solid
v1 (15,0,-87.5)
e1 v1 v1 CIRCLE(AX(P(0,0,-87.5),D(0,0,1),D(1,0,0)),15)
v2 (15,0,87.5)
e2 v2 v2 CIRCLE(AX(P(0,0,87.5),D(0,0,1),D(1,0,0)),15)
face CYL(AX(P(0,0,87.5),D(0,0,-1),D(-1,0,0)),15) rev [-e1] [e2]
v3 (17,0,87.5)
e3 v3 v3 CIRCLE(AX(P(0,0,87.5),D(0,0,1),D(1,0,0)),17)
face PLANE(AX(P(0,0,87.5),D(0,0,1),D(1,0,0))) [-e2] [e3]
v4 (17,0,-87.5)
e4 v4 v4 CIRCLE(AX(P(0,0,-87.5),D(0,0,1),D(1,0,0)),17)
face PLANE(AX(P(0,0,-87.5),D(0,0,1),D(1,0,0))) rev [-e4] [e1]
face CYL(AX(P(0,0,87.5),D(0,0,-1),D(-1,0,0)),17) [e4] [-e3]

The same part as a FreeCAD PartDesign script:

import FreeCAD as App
import Part
import Sketcher

V = App.Vector

doc = App.newDocument("Part")
body = doc.addObject("PartDesign::Body", "Body")

# Sketch on XY plane
sketch1 = body.newObject("Sketcher::SketchObject", "Sketch")
sketch1.AttachmentSupport = (doc.getObject("XY_Plane"), [""])
sketch1.MapMode = "FlatFace"
sketch1.addGeometry(Part.Circle(V(0, 0, 0), V(0, 0, 1), 17), False)
sketch1.addGeometry(Part.Circle(V(0, 0, 0), V(0, 0, 1), 15), False)
sketch1.addConstraint(Sketcher.Constraint("Coincident", 0, 3, -1, 1))
sketch1.addConstraint(Sketcher.Constraint("Coincident", 1, 3, -1, 1))
sketch1.addConstraint(Sketcher.Constraint("Diameter", 0, 34.0))
sketch1.addConstraint(Sketcher.Constraint("Diameter", 1, 30.0))
pad1 = body.newObject("PartDesign::Pad", "Pad")
pad1.Profile = sketch1
pad1.Length = 175
pad1.Midplane = True

doc.recompute()
